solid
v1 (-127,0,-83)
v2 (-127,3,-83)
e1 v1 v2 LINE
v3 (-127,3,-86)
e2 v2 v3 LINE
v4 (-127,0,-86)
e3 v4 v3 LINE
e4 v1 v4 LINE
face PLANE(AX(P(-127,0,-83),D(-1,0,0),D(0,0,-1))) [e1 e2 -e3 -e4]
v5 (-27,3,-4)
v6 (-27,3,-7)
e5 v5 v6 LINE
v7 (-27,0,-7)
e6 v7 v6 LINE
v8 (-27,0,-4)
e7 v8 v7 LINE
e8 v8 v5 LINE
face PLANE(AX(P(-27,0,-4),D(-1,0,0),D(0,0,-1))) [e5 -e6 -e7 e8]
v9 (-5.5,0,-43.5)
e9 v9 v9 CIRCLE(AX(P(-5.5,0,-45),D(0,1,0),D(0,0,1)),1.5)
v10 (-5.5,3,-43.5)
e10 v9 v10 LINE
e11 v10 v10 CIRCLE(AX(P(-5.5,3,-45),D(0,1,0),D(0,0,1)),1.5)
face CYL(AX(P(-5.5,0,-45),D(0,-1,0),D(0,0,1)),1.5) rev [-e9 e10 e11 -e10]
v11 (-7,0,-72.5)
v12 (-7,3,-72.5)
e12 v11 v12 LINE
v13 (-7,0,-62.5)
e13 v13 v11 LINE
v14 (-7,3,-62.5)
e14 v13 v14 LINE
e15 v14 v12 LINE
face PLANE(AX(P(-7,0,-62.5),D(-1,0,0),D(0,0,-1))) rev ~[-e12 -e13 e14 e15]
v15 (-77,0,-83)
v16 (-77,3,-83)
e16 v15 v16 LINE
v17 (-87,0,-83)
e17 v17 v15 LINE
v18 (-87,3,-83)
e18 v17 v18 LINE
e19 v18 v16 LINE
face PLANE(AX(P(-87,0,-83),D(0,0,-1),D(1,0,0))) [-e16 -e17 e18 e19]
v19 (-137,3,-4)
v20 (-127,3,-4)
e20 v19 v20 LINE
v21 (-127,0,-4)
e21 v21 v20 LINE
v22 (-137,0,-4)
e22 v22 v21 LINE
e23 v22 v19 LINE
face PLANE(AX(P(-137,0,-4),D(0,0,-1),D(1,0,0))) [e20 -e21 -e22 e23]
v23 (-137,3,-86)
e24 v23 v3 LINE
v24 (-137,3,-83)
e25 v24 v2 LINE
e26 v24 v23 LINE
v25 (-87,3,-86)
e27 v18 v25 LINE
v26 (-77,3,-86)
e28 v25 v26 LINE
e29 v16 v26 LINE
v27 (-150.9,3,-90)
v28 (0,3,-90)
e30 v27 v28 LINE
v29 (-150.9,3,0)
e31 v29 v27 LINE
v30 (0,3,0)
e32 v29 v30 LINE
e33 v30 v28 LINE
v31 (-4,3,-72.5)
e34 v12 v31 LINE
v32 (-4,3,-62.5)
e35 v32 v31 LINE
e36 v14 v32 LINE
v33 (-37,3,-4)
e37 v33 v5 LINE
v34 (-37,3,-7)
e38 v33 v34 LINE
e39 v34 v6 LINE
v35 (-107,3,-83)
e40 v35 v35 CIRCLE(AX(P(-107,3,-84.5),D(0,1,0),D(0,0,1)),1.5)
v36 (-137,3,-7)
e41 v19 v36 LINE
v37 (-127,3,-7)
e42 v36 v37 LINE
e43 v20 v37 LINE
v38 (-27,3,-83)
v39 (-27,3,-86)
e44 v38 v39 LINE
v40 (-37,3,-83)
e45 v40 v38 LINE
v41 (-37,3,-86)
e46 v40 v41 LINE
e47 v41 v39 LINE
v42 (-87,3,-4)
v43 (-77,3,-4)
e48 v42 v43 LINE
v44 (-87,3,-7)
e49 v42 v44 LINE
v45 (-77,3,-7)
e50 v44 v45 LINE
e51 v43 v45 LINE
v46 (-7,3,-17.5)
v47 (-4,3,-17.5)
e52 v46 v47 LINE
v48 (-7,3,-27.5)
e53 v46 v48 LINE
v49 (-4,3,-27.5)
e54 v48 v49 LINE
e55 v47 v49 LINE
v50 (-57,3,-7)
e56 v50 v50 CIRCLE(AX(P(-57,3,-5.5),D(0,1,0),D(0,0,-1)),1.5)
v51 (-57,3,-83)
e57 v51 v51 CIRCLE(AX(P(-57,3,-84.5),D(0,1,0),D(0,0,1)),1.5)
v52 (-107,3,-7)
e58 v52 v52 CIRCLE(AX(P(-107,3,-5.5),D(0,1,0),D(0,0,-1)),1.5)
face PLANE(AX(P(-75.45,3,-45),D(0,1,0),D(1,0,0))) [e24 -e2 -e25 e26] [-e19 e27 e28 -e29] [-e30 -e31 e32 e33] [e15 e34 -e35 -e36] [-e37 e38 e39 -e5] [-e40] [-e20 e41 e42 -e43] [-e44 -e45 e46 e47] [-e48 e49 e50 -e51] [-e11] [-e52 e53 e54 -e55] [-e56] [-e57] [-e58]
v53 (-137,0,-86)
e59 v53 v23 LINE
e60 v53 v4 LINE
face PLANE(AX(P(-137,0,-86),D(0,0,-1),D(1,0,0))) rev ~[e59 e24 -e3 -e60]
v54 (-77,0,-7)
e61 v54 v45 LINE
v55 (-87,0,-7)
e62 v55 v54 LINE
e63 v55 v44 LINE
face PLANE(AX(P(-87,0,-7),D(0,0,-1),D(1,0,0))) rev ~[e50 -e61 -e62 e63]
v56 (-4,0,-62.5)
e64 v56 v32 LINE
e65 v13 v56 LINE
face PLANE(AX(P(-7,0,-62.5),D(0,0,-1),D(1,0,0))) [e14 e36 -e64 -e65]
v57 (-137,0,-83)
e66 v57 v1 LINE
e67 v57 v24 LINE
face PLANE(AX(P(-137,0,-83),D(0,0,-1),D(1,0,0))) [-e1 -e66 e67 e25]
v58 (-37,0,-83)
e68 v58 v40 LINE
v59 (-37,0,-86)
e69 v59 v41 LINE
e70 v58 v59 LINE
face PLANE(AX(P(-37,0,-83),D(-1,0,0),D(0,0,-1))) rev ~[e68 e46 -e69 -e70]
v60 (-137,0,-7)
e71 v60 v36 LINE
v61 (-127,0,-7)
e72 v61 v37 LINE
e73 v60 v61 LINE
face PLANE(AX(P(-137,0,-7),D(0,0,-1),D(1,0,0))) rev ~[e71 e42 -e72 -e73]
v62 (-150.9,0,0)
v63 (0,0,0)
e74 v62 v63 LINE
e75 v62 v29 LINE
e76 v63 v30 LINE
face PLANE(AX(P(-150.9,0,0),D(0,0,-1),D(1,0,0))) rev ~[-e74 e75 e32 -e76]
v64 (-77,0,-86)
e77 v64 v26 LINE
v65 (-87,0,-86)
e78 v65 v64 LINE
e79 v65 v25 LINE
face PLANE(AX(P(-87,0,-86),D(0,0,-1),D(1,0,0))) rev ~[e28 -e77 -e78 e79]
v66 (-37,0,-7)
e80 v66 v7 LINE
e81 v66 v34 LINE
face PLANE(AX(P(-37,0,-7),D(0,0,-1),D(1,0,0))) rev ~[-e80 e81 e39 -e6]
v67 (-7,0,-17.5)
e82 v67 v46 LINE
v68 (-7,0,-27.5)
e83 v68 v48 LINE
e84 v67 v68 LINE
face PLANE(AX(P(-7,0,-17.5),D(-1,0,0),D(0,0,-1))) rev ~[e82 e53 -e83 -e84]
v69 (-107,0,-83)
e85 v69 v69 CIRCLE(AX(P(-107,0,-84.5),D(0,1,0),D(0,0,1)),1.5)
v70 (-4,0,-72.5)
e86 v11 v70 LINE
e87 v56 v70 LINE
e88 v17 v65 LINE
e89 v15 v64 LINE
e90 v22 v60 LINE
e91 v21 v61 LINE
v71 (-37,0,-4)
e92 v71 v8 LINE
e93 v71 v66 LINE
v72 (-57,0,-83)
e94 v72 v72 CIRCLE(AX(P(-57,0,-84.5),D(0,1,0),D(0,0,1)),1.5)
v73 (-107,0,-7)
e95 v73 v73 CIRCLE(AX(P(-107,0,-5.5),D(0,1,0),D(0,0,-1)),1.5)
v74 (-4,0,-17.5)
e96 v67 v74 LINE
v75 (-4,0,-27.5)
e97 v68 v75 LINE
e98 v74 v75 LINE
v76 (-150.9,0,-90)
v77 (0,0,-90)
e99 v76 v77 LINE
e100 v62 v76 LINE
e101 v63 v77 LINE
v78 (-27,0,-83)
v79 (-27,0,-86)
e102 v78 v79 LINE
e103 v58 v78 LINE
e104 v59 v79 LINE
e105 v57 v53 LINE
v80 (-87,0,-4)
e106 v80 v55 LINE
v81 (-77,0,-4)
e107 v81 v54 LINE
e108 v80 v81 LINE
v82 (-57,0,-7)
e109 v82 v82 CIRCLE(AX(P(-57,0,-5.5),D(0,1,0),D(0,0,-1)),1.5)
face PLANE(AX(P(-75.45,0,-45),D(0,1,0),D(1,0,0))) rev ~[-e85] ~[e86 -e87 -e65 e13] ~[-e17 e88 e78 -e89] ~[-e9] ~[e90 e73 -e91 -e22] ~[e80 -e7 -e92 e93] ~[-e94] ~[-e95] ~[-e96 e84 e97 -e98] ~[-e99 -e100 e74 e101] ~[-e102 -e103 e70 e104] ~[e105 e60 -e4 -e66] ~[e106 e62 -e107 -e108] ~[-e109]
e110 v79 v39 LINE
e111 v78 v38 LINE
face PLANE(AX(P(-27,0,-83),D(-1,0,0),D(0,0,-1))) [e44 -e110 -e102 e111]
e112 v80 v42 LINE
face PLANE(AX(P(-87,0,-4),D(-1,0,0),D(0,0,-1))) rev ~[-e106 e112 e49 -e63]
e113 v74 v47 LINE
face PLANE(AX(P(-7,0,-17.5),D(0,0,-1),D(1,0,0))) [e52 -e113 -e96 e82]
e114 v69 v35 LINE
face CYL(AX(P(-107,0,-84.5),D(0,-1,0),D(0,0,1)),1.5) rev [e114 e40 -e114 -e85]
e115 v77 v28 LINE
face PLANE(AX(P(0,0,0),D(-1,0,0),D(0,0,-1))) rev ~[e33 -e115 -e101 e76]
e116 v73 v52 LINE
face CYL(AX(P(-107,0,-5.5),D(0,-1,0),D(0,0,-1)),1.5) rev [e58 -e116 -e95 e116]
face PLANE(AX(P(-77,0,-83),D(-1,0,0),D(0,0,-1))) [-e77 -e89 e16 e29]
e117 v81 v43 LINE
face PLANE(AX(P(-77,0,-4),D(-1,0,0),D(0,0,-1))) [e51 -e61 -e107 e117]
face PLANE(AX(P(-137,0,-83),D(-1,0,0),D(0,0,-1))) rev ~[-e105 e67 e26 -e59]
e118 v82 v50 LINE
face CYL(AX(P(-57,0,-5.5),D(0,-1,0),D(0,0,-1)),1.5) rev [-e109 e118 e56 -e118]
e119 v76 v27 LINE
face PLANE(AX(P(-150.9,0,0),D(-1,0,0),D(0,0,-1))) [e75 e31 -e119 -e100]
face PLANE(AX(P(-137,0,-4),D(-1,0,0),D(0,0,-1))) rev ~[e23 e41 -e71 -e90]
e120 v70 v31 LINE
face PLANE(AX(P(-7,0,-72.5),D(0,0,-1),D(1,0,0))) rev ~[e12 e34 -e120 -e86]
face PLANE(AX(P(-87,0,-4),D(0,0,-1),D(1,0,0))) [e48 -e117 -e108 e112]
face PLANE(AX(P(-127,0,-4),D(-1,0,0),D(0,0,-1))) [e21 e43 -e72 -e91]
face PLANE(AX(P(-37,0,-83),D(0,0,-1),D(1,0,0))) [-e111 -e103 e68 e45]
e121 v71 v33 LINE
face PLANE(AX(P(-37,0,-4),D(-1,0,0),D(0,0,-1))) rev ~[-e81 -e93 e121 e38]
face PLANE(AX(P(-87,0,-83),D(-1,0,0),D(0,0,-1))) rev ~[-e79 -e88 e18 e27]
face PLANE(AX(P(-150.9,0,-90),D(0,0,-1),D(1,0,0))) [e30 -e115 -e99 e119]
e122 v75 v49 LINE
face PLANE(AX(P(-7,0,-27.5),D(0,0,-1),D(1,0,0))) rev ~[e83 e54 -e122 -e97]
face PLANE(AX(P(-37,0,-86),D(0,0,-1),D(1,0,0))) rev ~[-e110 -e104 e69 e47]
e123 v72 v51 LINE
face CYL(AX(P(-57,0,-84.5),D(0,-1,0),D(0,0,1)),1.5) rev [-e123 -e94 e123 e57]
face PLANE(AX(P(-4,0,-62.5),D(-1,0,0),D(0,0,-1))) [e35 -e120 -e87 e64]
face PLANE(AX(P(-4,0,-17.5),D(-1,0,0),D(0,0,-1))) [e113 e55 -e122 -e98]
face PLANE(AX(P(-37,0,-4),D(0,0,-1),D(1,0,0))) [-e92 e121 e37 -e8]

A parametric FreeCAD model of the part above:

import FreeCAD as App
import Part
import Sketcher
from FreeCAD import Vector

doc = App.newDocument("Part")
body = doc.addObject("PartDesign::Body", "Body")

# Sketch on XZ plane
sketch1 = body.newObject("Sketcher::SketchObject", "Sketch")
sketch1.AttachmentSupport = (doc.getObject("XZ_Plane"), [""])
sketch1.MapMode = "FlatFace"
sketch1.addGeometry([
    Part.LineSegment(Vector(-150.9, -90, 0), Vector(-150.9, 0, 0)),  # 0
    Part.LineSegment(Vector(-150.9, 0, 0), Vector(0, 0, 0)),  # 1
    Part.LineSegment(Vector(0, 0, 0), Vector(0, -90, 0)),  # 2
    Part.LineSegment(Vector(0, -90, 0), Vector(-150.9, -90, 0)),  # 3
    Part.LineSegment(Vector(-127, -4, 0), Vector(-137, -4, 0)),  # 4
    Part.LineSegment(Vector(-137, -4, 0), Vector(-137, -7, 0)),  # 5
    Part.LineSegment(Vector(-137, -7, 0), Vector(-127, -7, 0)),  # 6
    Part.LineSegment(Vector(-127, -7, 0), Vector(-127, -4, 0)),  # 7
    Part.Circle(Vector(-107, -5.5, 0), Vector(0, 0, 1), 1.5),  # 8
    Part.LineSegment(Vector(-77, -4, 0), Vector(-87, -4, 0)),  # 9
    Part.LineSegment(Vector(-87, -4, 0), Vector(-87, -7, 0)),  # 10
    Part.LineSegment(Vector(-87, -7, 0), Vector(-77, -7, 0)),  # 11
    Part.LineSegment(Vector(-77, -7, 0), Vector(-77, -4, 0)),  # 12
    Part.Circle(Vector(-57, -5.5, 0), Vector(0, 0, 1), 1.5),  # 13
    Part.LineSegment(Vector(-27, -4, 0), Vector(-37, -4, 0)),  # 14
    Part.LineSegment(Vector(-37, -4, 0), Vector(-37, -7, 0)),  # 15
    Part.LineSegment(Vector(-37, -7, 0), Vector(-27, -7, 0)),  # 16
    Part.LineSegment(Vector(-27, -7, 0), Vector(-27, -4, 0)),  # 17
    Part.LineSegment(Vector(-4, -17.5, 0), Vector(-7, -17.5, 0)),  # 18
    Part.LineSegment(Vector(-7, -17.5, 0), Vector(-7, -27.5, 0)),  # 19
    Part.LineSegment(Vector(-7, -27.5, 0), Vector(-4, -27.5, 0)),  # 20
    Part.LineSegment(Vector(-4, -27.5, 0), Vector(-4, -17.5, 0)),  # 21
    Part.LineSegment(Vector(-127, -83, 0), Vector(-137, -83, 0)),  # 22
    Part.LineSegment(Vector(-137, -83, 0), Vector(-137, -86, 0)),  # 23
    Part.LineSegment(Vector(-137, -86, 0), Vector(-127, -86, 0)),  # 24
    Part.LineSegment(Vector(-127, -86, 0), Vector(-127, -83, 0)),  # 25
    Part.Circle(Vector(-107, -84.5, 0), Vector(0, 0, 1), 1.5),  # 26
    Part.LineSegment(Vector(-77, -83, 0), Vector(-87, -83, 0)),  # 27
    Part.LineSegment(Vector(-87, -83, 0), Vector(-87, -86, 0)),  # 28
    Part.LineSegment(Vector(-87, -86, 0), Vector(-77, -86, 0)),  # 29
    Part.LineSegment(Vector(-77, -86, 0), Vector(-77, -83, 0)),  # 30
    Part.Circle(Vector(-5.5, -45, 0), Vector(0, 0, 1), 1.5),  # 31
    Part.Circle(Vector(-57, -84.5, 0), Vector(0, 0, 1), 1.5),  # 32
    Part.LineSegment(Vector(-4, -62.5, 0), Vector(-7, -62.5, 0)),  # 33
    Part.LineSegment(Vector(-7, -62.5, 0), Vector(-7, -72.5, 0)),  # 34
    Part.LineSegment(Vector(-7, -72.5, 0), Vector(-4, -72.5, 0)),  # 35
    Part.LineSegment(Vector(-4, -72.5, 0), Vector(-4, -62.5, 0)),  # 36
    Part.LineSegment(Vector(-27, -83, 0), Vector(-37, -83, 0)),  # 37
    Part.LineSegment(Vector(-37, -83, 0), Vector(-37, -86, 0)),  # 38
    Part.LineSegment(Vector(-37, -86, 0), Vector(-27, -86, 0)),  # 39
    Part.LineSegment(Vector(-27, -86, 0), Vector(-27, -83, 0)),  # 40
], False)
sketch1.addConstraint([
    Sketcher.Constraint("Coincident", 0, 2, 1, 1),
    Sketcher.Constraint("Coincident", 1, 2, 2, 1),
    Sketcher.Constraint("Coincident", 2, 2, 3, 1),
    Sketcher.Constraint("Coincident", 3, 2, 0, 1),
    Sketcher.Constraint("Coincident", 4, 2, 5, 1),
    Sketcher.Constraint("Coincident", 5, 2, 6, 1),
    Sketcher.Constraint("Coincident", 6, 2, 7, 1),
    Sketcher.Constraint("Coincident", 7, 2, 4, 1),
    Sketcher.Constraint("Coincident", 9, 2, 10, 1),
    Sketcher.Constraint("Coincident", 10, 2, 11, 1),
    Sketcher.Constraint("Coincident", 11, 2, 12, 1),
    Sketcher.Constraint("Coincident", 12, 2, 9, 1),
    Sketcher.Constraint("Coincident", 14, 2, 15, 1),
    Sketcher.Constraint("Coincident", 15, 2, 16, 1),
    Sketcher.Constraint("Coincident", 16, 2, 17, 1),
    Sketcher.Constraint("Coincident", 17, 2, 14, 1),
    Sketcher.Constraint("Coincident", 18, 2, 19, 1),
    Sketcher.Constraint("Coincident", 19, 2, 20, 1),
    Sketcher.Constraint("Coincident", 20, 2, 21, 1),
    Sketcher.Constraint("Coincident", 21, 2, 18, 1),
    Sketcher.Constraint("Coincident", 22, 2, 23, 1),
    Sketcher.Constraint("Coincident", 23, 2, 24, 1),
    Sketcher.Constraint("Coincident", 24, 2, 25, 1),
    Sketcher.Constraint("Coincident", 25, 2, 22, 1),
    Sketcher.Constraint("Coincident", 27, 2, 28, 1),
    Sketcher.Constraint("Coincident", 28, 2, 29, 1),
    Sketcher.Constraint("Coincident", 29, 2, 30, 1),
    Sketcher.Constraint("Coincident", 30, 2, 27, 1),
    Sketcher.Constraint("Coincident", 33, 2, 34, 1),
    Sketcher.Constraint("Coincident", 34, 2, 35, 1),
    Sketcher.Constraint("Coincident", 35, 2, 36, 1),
    Sketcher.Constraint("Coincident", 36, 2, 33, 1),
    Sketcher.Constraint("Coincident", 37, 2, 38, 1),
    Sketcher.Constraint("Coincident", 38, 2, 39, 1),
    Sketcher.Constraint("Coincident", 39, 2, 40, 1),
    Sketcher.Constraint("Coincident", 40, 2, 37, 1),
    Sketcher.Constraint("Vertical", 0),
    Sketcher.Constraint("Horizontal", 1),
    Sketcher.Constraint("Vertical", 2),
    Sketcher.Constraint("Horizontal", 3),
    Sketcher.Constraint("Horizontal", 4),
    Sketcher.Constraint("Vertical", 5),
    Sketcher.Constraint("Horizontal", 6),
    Sketcher.Constraint("Vertical", 7),
    Sketcher.Constraint("Horizontal", 9),
    Sketcher.Constraint("Vertical", 10),
    Sketcher.Constraint("Horizontal", 11),
    Sketcher.Constraint("Vertical", 12),
    Sketcher.Constraint("Horizontal", 14),
    Sketcher.Constraint("Vertical", 15),
    Sketcher.Constraint("Horizontal", 16),
    Sketcher.Constraint("Vertical", 17),
    Sketcher.Constraint("Horizontal", 18),
    Sketcher.Constraint("Vertical", 19),
    Sketcher.Constraint("Horizontal", 20),
    Sketcher.Constraint("Vertical", 21),
    Sketcher.Constraint("Horizontal", 22),
    Sketcher.Constraint("Vertical", 23),
    Sketcher.Constraint("Horizontal", 24),
    Sketcher.Constraint("Vertical", 25),
    Sketcher.Constraint("Horizontal", 27),
    Sketcher.Constraint("Vertical", 28),
    Sketcher.Constraint("Horizontal", 29),
    Sketcher.Constraint("Vertical", 30),
    Sketcher.Constraint("Horizontal", 33),
    Sketcher.Constraint("Vertical", 34),
    Sketcher.Constraint("Horizontal", 35),
    Sketcher.Constraint("Vertical", 36),
    Sketcher.Constraint("Horizontal", 37),
    Sketcher.Constraint("Vertical", 38),
    Sketcher.Constraint("Horizontal", 39),
    Sketcher.Constraint("Vertical", 40),
    Sketcher.Constraint("Coincident", 1, 2, -1, 1),
    Sketcher.Constraint("Equal", 8, 13),
    Sketcher.Constraint("Equal", 13, 26),
    Sketcher.Constraint("Equal", 26, 31),
    Sketcher.Constraint("Equal", 31, 32),
    Sketcher.Constraint("Horizontal", 8, 3, 13, 3),
    Sketcher.Constraint("Horizontal", 26, 3, 32, 3),
    Sketcher.Constraint("Horizontal", 7, 2, 9, 2),
    Sketcher.Constraint("Horizontal", 6, 2, 10, 2),
    Sketcher.Constraint("Horizontal", 12, 2, 14, 2),
    Sketcher.Constraint("Horizontal", 11, 2, 15, 2),
    Sketcher.Constraint("Horizontal", 25, 2, 27, 2),
    Sketcher.Constraint("Horizontal", 24, 2, 28, 2),
    Sketcher.Constraint("Horizontal", 30, 2, 37, 2),
    Sketcher.Constraint("Horizontal", 29, 2, 38, 2),
    Sketcher.Constraint("Vertical", 8, 3, 26, 3),
    Sketcher.Constraint("Vertical", 13, 3, 32, 3),
    Sketcher.Constraint("Vertical", 5, 2, 22, 2),
    Sketcher.Constraint("Vertical", 7, 2, 24, 2),
    Sketcher.Constraint("Vertical", 10, 2, 27, 2),
    Sketcher.Constraint("Vertical", 12, 2, 29, 2),
    Sketcher.Constraint("Vertical", 19, 2, 33, 2),
    Sketcher.Constraint("Vertical", 21, 2, 35, 2),
    Sketcher.Constraint("Vertical", 15, 2, 37, 2),
    Sketcher.Constraint("Vertical", 17, 2, 39, 2),
    Sketcher.Constraint("Equal", 6, 9),
    Sketcher.Constraint("Equal", 11, 14),
    Sketcher.Constraint("Equal", 35, 5),
    Sketcher.Constraint("Equal", 39, 19),
    Sketcher.Constraint("Equal", 17, 23),
    Sketcher.Constraint("Equal", 21, 34),
    Sketcher.Constraint("Diameter", 8, 3.0),
    Sketcher.Constraint("DistanceX", 4, 2, 4, 1, 10.0),
    Sketcher.Constraint("DistanceX", 18, 2, 18, 1, 3.0),
    Sketcher.Constraint("DistanceY", 0, 1, 0, 2, 90.0),
    Sketcher.Constraint("DistanceX", 1, 1, 1, 2, 150.9),
    Sketcher.Constraint("DistanceX", 8, 3, -1, 1, 107.0),
    Sketcher.Constraint("DistanceX", 13, 3, -1, 1, 57.0),
    Sketcher.Constraint("DistanceY", 31, 3, -1, 1, 45.0),
    Sketcher.Constraint("DistanceX", 4, 2, -1, 1, 137.0),
    Sketcher.Constraint("DistanceY", 4, 2, -1, 1, 4.0),
    Sketcher.Constraint("DistanceX", 9, 2, -1, 1, 87.0),
    Sketcher.Constraint("DistanceX", 14, 2, -1, 1, 37.0),
    Sketcher.Constraint("DistanceX", 18, 2, -1, 1, 7.0),
    Sketcher.Constraint("DistanceY", 22, 2, -1, 1, 83.0),
    Sketcher.Constraint("DistanceY", 26, 3, 8, 3, 79.0),
    Sketcher.Constraint("DistanceY", 33, 2, 19, 2, 35.0),
    Sketcher.Constraint("DistanceY", 8, 3, -1, 1, 5.5),
    Sketcher.Constraint("DistanceX", 31, 3, -1, 1, 5.5),
    Sketcher.Constraint("DistanceY", 18, 2, -1, 1, 17.5),
])
pad1 = body.newObject("PartDesign::Pad", "Pad")
pad1.Profile = sketch1
pad1.Length = 3
pad1.Reversed = True

doc.recompute()
